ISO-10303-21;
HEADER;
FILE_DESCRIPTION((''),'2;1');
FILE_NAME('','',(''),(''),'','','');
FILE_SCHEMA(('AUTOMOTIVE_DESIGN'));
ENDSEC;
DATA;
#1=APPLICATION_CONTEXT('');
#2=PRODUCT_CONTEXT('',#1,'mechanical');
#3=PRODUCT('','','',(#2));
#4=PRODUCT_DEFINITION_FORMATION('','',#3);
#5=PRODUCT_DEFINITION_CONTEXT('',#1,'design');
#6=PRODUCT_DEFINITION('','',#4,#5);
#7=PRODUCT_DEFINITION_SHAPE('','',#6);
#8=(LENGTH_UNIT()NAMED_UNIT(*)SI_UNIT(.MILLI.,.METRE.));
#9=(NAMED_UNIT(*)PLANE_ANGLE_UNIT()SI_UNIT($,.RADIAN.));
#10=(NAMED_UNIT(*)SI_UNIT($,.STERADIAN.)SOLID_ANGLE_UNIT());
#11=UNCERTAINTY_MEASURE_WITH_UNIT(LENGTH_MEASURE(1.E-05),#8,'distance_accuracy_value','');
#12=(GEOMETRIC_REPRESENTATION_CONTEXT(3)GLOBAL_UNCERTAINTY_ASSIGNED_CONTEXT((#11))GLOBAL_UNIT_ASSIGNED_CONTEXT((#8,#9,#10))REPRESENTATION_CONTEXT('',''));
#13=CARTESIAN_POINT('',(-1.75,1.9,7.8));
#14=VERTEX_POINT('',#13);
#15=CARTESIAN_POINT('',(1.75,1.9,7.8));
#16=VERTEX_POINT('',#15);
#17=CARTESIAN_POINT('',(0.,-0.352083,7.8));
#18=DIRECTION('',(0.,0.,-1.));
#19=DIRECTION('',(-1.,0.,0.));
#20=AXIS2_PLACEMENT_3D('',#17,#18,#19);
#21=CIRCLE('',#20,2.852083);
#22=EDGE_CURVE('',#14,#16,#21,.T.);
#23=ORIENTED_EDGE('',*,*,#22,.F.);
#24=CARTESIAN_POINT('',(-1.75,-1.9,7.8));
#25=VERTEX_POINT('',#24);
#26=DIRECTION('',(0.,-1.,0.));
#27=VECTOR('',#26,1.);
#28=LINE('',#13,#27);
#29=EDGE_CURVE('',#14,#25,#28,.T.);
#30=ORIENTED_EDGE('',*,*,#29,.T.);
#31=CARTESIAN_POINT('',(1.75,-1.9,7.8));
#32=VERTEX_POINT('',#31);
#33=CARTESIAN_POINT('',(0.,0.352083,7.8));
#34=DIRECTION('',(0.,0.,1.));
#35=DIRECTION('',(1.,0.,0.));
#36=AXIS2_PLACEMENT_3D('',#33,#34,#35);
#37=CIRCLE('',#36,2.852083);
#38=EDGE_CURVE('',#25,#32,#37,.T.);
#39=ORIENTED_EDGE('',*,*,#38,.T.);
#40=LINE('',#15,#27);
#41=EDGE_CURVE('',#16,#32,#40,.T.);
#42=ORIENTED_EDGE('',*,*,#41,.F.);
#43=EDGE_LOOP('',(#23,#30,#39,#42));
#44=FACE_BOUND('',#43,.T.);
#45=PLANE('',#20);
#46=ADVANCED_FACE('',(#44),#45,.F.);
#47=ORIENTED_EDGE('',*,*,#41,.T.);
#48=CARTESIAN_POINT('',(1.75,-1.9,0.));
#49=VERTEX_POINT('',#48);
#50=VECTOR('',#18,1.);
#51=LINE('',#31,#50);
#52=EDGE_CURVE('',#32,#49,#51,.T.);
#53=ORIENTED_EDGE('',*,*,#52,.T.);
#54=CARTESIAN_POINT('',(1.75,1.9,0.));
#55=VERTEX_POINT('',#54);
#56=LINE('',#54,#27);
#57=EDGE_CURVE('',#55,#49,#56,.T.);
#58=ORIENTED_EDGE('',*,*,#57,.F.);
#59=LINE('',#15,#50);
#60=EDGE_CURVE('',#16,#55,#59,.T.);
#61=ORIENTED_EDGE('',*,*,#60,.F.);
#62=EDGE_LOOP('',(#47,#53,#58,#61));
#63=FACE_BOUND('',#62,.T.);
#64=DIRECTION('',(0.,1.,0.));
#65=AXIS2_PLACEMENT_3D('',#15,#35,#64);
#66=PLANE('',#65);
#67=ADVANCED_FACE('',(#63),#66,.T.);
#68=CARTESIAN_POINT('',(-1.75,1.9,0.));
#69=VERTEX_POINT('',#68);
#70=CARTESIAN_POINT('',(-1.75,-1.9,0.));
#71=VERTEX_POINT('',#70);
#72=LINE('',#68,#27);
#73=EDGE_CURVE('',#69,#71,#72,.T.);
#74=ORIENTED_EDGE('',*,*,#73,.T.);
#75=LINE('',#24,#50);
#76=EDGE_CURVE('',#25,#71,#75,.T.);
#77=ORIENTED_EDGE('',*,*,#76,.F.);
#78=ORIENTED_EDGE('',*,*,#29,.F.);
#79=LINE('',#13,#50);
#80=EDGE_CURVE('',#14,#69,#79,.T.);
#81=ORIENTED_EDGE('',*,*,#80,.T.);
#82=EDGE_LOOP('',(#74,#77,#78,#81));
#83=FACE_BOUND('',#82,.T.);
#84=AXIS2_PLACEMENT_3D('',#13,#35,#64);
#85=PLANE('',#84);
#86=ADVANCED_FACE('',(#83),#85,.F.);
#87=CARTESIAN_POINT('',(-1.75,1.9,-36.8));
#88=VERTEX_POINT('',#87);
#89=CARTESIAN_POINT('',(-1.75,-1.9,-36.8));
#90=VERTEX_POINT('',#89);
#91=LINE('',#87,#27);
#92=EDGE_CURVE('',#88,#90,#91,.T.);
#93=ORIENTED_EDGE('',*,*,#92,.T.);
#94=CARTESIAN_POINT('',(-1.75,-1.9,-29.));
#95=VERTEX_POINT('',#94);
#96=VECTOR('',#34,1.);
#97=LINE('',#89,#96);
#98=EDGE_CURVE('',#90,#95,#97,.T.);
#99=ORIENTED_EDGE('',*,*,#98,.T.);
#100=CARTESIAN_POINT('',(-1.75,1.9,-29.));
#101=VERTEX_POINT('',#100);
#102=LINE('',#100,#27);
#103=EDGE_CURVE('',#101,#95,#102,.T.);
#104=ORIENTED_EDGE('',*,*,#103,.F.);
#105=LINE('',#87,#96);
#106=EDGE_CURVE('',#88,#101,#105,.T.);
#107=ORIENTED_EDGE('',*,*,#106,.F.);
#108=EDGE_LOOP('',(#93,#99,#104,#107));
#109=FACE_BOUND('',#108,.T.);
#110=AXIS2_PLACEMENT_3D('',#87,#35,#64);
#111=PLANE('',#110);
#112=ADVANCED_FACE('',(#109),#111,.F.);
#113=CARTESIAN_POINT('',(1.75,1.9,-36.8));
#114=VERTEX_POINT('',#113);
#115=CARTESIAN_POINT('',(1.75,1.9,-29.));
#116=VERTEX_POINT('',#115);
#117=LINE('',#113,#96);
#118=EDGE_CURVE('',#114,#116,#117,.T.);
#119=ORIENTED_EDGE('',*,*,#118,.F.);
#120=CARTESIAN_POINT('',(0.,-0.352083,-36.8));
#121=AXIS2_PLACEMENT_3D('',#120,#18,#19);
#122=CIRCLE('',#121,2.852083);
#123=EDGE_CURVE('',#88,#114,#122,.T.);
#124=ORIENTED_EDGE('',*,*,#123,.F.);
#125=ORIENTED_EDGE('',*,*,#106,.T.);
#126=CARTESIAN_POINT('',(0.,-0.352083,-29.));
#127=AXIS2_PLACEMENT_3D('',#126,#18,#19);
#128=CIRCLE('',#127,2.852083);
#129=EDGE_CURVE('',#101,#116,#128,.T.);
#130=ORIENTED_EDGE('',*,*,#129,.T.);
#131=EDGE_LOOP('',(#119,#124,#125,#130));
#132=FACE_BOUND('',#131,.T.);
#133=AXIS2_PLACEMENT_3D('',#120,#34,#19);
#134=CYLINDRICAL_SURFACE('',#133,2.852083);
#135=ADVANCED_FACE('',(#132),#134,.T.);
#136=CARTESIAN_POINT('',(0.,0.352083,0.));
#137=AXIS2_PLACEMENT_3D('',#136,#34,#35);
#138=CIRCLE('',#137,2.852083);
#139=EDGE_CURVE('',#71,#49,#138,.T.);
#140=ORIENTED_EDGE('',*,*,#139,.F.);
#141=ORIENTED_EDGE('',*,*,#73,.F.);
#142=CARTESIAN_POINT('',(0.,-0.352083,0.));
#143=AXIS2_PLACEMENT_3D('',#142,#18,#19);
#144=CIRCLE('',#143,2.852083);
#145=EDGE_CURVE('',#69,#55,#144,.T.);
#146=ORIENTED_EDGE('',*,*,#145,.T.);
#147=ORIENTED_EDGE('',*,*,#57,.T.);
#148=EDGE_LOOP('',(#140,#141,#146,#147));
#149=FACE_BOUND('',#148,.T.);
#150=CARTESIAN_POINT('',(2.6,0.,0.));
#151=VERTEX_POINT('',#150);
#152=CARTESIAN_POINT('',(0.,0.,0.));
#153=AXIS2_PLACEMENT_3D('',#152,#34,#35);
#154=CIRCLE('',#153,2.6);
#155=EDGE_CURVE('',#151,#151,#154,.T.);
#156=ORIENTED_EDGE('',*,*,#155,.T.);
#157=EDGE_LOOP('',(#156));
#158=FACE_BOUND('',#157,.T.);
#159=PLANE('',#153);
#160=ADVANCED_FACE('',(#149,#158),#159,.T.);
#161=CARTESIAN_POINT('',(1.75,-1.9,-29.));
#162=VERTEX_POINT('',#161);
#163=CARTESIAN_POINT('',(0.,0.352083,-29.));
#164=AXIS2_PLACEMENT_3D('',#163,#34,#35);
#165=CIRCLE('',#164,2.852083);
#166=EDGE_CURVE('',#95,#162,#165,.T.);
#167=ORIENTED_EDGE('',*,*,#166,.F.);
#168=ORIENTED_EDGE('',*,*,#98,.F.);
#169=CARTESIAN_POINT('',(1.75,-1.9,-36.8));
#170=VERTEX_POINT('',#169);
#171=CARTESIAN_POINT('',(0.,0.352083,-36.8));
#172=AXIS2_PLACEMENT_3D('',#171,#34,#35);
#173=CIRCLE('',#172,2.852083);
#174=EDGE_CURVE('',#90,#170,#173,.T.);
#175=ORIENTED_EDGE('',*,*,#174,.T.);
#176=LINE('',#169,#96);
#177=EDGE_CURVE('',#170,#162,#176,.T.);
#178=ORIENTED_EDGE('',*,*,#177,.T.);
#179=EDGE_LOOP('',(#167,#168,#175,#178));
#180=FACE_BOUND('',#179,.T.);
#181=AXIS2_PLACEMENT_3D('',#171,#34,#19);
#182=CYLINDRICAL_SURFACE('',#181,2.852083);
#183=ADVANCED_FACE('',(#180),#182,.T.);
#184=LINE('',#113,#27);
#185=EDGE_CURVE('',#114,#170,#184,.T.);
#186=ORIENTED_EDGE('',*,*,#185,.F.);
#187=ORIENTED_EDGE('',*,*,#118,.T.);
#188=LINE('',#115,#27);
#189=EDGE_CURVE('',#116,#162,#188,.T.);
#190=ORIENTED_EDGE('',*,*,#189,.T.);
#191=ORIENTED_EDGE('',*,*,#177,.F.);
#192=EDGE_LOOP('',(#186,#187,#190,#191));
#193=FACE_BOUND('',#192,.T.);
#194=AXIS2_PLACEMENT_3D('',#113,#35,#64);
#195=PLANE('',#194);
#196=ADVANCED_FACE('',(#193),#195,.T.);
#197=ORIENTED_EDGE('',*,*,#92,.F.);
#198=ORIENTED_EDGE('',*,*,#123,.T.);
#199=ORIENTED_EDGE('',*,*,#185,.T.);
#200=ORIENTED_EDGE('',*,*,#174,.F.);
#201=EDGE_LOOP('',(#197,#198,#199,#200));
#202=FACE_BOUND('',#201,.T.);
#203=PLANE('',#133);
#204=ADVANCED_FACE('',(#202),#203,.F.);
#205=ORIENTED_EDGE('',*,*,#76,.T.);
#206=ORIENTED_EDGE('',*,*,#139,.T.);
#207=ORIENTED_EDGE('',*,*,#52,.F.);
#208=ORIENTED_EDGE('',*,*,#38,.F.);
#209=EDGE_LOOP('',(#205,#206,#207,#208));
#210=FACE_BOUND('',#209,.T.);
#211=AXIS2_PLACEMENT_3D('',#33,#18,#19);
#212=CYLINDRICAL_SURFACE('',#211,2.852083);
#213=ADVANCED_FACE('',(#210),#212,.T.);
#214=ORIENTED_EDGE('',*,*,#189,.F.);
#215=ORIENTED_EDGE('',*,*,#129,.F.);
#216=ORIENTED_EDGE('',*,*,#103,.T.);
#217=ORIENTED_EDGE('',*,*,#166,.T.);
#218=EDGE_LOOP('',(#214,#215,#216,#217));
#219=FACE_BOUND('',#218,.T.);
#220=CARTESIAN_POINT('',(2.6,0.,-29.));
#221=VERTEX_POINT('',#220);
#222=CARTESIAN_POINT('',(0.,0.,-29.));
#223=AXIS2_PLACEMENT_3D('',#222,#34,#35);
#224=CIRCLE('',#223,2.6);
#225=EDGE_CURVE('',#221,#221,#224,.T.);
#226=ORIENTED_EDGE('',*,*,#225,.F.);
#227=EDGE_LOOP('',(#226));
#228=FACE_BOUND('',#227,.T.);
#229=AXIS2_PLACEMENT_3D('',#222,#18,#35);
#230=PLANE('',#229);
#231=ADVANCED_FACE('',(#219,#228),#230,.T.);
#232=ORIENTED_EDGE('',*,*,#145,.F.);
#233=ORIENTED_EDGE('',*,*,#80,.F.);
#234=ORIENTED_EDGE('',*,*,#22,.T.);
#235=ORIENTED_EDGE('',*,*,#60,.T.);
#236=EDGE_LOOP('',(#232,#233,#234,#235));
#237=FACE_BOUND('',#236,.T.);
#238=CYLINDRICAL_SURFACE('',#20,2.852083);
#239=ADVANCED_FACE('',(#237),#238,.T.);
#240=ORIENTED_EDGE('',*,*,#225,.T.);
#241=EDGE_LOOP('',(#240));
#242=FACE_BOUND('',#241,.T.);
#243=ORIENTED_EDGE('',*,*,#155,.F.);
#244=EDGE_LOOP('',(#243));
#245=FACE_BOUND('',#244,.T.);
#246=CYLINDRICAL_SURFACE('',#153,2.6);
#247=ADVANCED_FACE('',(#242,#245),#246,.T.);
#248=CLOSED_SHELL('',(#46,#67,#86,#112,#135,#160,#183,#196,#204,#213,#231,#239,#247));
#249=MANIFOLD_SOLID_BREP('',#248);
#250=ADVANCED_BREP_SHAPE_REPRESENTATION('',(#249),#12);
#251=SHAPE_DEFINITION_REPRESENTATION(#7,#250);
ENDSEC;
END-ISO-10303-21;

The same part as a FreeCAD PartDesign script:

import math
import FreeCAD as App
import Part
import Sketcher
from FreeCAD import Vector

doc = App.newDocument("Part")
params = doc.addObject("Spreadsheet::Sheet", "Params")
for row, (alias, value) in enumerate([
    ("sketch1_width", "2.6 mm"),
    ("sketch1_height", "14.5 mm"),
    ("revolution_angle", "360 deg"),
    ("sketch2_height", "3.8 mm"),
    ("pad1_length", "7.8 mm"),
], start=1):
    params.set(f"A{row}", alias)
    params.set(f"B{row}", "=" + value)
    params.setAlias(f"B{row}", alias)

body = doc.addObject("PartDesign::Body", "Body")

# Sketch on XZ plane
sketch1 = doc.addObject("Sketcher::SketchObject", "Sketch")
body.addObject(sketch1)
sketch1.AttachmentSupport = (doc.XZ_Plane, [""])
sketch1.MapMode = "FlatFace"
sketch1.addGeometry(Part.LineSegment(Vector(0, -14.5, 0), Vector(0, 0, 0)), False)
sketch1.addGeometry(Part.LineSegment(Vector(0, 0, 0), Vector(2.6, 0, 0)), False)
sketch1.addGeometry(Part.LineSegment(Vector(2.6, 0, 0), Vector(2.6, -14.5, 0)), False)
sketch1.addGeometry(Part.LineSegment(Vector(2.6, -14.5, 0), Vector(0, -14.5, 0)), False)
sketch1.addConstraint(Sketcher.Constraint("Coincident", 0, 2, 1, 1))
sketch1.addConstraint(Sketcher.Constraint("Coincident", 1, 2, 2, 1))
sketch1.addConstraint(Sketcher.Constraint("Coincident", 2, 2, 3, 1))
sketch1.addConstraint(Sketcher.Constraint("Coincident", 3, 2, 0, 1))
sketch1.addConstraint(Sketcher.Constraint("Vertical", 0))
sketch1.addConstraint(Sketcher.Constraint("Horizontal", 1))
sketch1.addConstraint(Sketcher.Constraint("Vertical", 2))
sketch1.addConstraint(Sketcher.Constraint("Horizontal", 3))
sketch1.addConstraint(Sketcher.Constraint("Coincident", 0, 2, -1, 1))
sketch1.addConstraint(Sketcher.Constraint("DistanceX", 1, 1, 1, 2, 2.6))
sketch1.addConstraint(Sketcher.Constraint("DistanceY", 0, 1, 0, 2, 14.5))
sketch1.setExpression("Constraints[9]", "Params.sketch1_width")
sketch1.setExpression("Constraints[10]", "Params.sketch1_height")
revolution = doc.addObject("PartDesign::Revolution", "Revolution")
body.addObject(revolution)
revolution.Profile = sketch1
revolution.ReferenceAxis = (sketch1, ["V_Axis"])
revolution.setExpression("Angle", "Params.revolution_angle")

# Sketch on XY plane
sketch2 = doc.addObject("Sketcher::SketchObject", "Sketch001")
body.addObject(sketch2)
sketch2.AttachmentSupport = (doc.XY_Plane, [""])
sketch2.MapMode = "FlatFace"
sketch2.addGeometry(Part.LineSegment(Vector(-1.8, 1.9, 0), Vector(-1.8, -1.9, 0)), False)
sketch2.addGeometry(Part.ArcOfCircle(Part.Circle(Vector(0, 0.4, 0), Vector(0, 0, 1), 2.9), math.radians(-128), math.radians(-52)), False)
sketch2.addGeometry(Part.LineSegment(Vector(1.8, -1.9, 0), Vector(1.8, 1.9, 0)), False)
sketch2.addGeometry(Part.ArcOfCircle(Part.Circle(Vector(0, -0.4, 0), Vector(0, 0, 1), 2.9), math.radians(52), math.radians(128)), False)
sketch2.addConstraint(Sketcher.Constraint("Coincident", 0, 2, 1, 1))
sketch2.addConstraint(Sketcher.Constraint("Coincident", 1, 2, 2, 1))
sketch2.addConstraint(Sketcher.Constraint("Coincident", 2, 2, 3, 1))
sketch2.addConstraint(Sketcher.Constraint("Coincident", 3, 2, 0, 1))
sketch2.addConstraint(Sketcher.Constraint("Vertical", 0))
sketch2.addConstraint(Sketcher.Constraint("Vertical", 2))
sketch2.addConstraint(Sketcher.Constraint("Equal", 1, 3))
sketch2.addConstraint(Sketcher.Constraint("Symmetric", 1, 3, 3, 3, -1, 1))
sketch2.addConstraint(Sketcher.Constraint("Symmetric", 0, 2, 1, 2, -2))
sketch2.addConstraint(Sketcher.Constraint("DistanceY", 0, 2, 0, 1, 3.8))
sketch2.addConstraint(Sketcher.Constraint("DistanceX", 0, 2, 1, 2, 3.5))
sketch2.addConstraint(Sketcher.Constraint("Radius", 1, 2.852083))
sketch2.setExpression("Constraints[9]", "Params.sketch2_height")
pad1 = doc.addObject("PartDesign::Pad", "Pad")
body.addObject(pad1)
pad1.Profile = sketch2
pad1.setExpression("Length", "Params.pad1_length")
body2 = doc.addObject("PartDesign::Body", "Body001")
doc.recompute()

body2.BaseFeature = body
doc.recompute()

mirroring = doc.addObject("Part::Mirroring", "Mirroring")
mirroring.Source = body
mirroring.Base = Vector(0, 0, -14.5)
mirroring.Normal = Vector(0, 0, -1)
body3 = doc.addObject("PartDesign::Body", "Body002")
body3.BaseFeature = mirroring
boolean = doc.addObject("PartDesign::Boolean", "Boolean")
body2.addObject(boolean)
boolean.Type = "Fuse"
boolean.addObjects([body3])
doc.recompute()
mirroring.Visibility = False

doc.recompute()
